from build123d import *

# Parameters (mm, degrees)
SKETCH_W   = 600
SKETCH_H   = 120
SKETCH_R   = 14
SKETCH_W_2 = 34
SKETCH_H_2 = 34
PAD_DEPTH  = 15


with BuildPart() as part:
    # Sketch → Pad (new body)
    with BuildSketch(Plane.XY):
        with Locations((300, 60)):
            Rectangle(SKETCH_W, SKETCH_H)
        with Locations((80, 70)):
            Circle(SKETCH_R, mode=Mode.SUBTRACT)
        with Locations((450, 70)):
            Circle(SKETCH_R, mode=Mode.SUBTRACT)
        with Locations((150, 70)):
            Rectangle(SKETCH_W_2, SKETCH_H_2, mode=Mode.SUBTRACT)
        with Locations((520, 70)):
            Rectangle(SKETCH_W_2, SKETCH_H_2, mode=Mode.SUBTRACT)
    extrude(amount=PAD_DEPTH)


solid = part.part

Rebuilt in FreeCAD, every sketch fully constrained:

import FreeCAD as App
import Part
import Sketcher
Q = App.Units.Quantity


def add_polygon(sketch, points):
    """Adds a closed chain of lines whose ends are joined by coincident constraints."""
    first, n = sketch.GeometryCount, len(points)
    for a, b in zip(points, points[1:] + points[:1]):
        sketch.addGeometry(Part.LineSegment(App.Vector(*a, 0), App.Vector(*b, 0)), False)
    for i in range(n):
        sketch.addConstraint(Sketcher.Constraint("Coincident", first + i, 2, first + (i + 1) % n, 1))

doc = App.newDocument("Part")
body = doc.addObject("PartDesign::Body", "Body")

# Sketch on XY plane
sketch1 = body.newObject("Sketcher::SketchObject", "Sketch")
sketch1.AttachmentSupport = (doc.getObject("XY_Plane"), [""])
sketch1.MapMode = "FlatFace"
add_polygon(sketch1, [(0, 120), (0, 0), (600, 0), (600, 120)])  # lines 0-3
sketch1.addGeometry(Part.Circle(App.Vector(80, 70, 0), App.Vector(0, 0, 1), 14), False)  # 4
add_polygon(sketch1, [(167, 53), (133, 53), (133, 87), (167, 87)])  # lines 5-8
sketch1.addGeometry(Part.Circle(App.Vector(450, 70, 0), App.Vector(0, 0, 1), 14), False)  # 9
add_polygon(sketch1, [(537, 53), (503, 53), (503, 87), (537, 87)])  # lines 10-13
sketch1.addConstraint([
    Sketcher.Constraint("Vertical", 0),
    Sketcher.Constraint("Horizontal", 1),
    Sketcher.Constraint("Vertical", 2),
    Sketcher.Constraint("Horizontal", 3),
    Sketcher.Constraint("Horizontal", 5),
    Sketcher.Constraint("Vertical", 6),
    Sketcher.Constraint("Horizontal", 7),
    Sketcher.Constraint("Vertical", 8),
    Sketcher.Constraint("Horizontal", 10),
    Sketcher.Constraint("Vertical", 11),
    Sketcher.Constraint("Horizontal", 12),
    Sketcher.Constraint("Vertical", 13),
    Sketcher.Constraint("Coincident", 0, 2, -1, 1),
    Sketcher.Constraint("Equal", 4, 9),
    Sketcher.Constraint("Horizontal", 4, 3, 9, 3),
    Sketcher.Constraint("Horizontal", 8, 2, 10, 2),
    Sketcher.Constraint("Horizontal", 7, 2, 11, 2),
    Sketcher.Constraint("Equal", 7, 10),
    Sketcher.Constraint("Equal", 12, 6),
    Sketcher.Constraint("Diameter", 4, Q("28 mm")),
    Sketcher.Constraint("DistanceX", 1, 1, 1, 2, Q("600 mm")),
    Sketcher.Constraint("DistanceX", 5, 2, 5, 1, Q("34 mm")),
    Sketcher.Constraint("DistanceY", 0, 2, 0, 1, Q("120 mm")),
    Sketcher.Constraint("DistanceX", -1, 1, 4, 3, Q("80 mm")),
    Sketcher.Constraint("DistanceY", -1, 1, 4, 3, Q("70 mm")),
    Sketcher.Constraint("DistanceX", -1, 1, 9, 3, Q("450 mm")),
    Sketcher.Constraint("DistanceX", -1, 1, 5, 2, Q("133 mm")),
    Sketcher.Constraint("DistanceY", -1, 1, 5, 2, Q("53 mm")),
    Sketcher.Constraint("DistanceX", -1, 1, 10, 2, Q("503 mm")),
])
pad1 = body.newObject("PartDesign::Pad", "Pad")
pad1.Profile = sketch1
pad1.Length = 15

doc.recompute()
